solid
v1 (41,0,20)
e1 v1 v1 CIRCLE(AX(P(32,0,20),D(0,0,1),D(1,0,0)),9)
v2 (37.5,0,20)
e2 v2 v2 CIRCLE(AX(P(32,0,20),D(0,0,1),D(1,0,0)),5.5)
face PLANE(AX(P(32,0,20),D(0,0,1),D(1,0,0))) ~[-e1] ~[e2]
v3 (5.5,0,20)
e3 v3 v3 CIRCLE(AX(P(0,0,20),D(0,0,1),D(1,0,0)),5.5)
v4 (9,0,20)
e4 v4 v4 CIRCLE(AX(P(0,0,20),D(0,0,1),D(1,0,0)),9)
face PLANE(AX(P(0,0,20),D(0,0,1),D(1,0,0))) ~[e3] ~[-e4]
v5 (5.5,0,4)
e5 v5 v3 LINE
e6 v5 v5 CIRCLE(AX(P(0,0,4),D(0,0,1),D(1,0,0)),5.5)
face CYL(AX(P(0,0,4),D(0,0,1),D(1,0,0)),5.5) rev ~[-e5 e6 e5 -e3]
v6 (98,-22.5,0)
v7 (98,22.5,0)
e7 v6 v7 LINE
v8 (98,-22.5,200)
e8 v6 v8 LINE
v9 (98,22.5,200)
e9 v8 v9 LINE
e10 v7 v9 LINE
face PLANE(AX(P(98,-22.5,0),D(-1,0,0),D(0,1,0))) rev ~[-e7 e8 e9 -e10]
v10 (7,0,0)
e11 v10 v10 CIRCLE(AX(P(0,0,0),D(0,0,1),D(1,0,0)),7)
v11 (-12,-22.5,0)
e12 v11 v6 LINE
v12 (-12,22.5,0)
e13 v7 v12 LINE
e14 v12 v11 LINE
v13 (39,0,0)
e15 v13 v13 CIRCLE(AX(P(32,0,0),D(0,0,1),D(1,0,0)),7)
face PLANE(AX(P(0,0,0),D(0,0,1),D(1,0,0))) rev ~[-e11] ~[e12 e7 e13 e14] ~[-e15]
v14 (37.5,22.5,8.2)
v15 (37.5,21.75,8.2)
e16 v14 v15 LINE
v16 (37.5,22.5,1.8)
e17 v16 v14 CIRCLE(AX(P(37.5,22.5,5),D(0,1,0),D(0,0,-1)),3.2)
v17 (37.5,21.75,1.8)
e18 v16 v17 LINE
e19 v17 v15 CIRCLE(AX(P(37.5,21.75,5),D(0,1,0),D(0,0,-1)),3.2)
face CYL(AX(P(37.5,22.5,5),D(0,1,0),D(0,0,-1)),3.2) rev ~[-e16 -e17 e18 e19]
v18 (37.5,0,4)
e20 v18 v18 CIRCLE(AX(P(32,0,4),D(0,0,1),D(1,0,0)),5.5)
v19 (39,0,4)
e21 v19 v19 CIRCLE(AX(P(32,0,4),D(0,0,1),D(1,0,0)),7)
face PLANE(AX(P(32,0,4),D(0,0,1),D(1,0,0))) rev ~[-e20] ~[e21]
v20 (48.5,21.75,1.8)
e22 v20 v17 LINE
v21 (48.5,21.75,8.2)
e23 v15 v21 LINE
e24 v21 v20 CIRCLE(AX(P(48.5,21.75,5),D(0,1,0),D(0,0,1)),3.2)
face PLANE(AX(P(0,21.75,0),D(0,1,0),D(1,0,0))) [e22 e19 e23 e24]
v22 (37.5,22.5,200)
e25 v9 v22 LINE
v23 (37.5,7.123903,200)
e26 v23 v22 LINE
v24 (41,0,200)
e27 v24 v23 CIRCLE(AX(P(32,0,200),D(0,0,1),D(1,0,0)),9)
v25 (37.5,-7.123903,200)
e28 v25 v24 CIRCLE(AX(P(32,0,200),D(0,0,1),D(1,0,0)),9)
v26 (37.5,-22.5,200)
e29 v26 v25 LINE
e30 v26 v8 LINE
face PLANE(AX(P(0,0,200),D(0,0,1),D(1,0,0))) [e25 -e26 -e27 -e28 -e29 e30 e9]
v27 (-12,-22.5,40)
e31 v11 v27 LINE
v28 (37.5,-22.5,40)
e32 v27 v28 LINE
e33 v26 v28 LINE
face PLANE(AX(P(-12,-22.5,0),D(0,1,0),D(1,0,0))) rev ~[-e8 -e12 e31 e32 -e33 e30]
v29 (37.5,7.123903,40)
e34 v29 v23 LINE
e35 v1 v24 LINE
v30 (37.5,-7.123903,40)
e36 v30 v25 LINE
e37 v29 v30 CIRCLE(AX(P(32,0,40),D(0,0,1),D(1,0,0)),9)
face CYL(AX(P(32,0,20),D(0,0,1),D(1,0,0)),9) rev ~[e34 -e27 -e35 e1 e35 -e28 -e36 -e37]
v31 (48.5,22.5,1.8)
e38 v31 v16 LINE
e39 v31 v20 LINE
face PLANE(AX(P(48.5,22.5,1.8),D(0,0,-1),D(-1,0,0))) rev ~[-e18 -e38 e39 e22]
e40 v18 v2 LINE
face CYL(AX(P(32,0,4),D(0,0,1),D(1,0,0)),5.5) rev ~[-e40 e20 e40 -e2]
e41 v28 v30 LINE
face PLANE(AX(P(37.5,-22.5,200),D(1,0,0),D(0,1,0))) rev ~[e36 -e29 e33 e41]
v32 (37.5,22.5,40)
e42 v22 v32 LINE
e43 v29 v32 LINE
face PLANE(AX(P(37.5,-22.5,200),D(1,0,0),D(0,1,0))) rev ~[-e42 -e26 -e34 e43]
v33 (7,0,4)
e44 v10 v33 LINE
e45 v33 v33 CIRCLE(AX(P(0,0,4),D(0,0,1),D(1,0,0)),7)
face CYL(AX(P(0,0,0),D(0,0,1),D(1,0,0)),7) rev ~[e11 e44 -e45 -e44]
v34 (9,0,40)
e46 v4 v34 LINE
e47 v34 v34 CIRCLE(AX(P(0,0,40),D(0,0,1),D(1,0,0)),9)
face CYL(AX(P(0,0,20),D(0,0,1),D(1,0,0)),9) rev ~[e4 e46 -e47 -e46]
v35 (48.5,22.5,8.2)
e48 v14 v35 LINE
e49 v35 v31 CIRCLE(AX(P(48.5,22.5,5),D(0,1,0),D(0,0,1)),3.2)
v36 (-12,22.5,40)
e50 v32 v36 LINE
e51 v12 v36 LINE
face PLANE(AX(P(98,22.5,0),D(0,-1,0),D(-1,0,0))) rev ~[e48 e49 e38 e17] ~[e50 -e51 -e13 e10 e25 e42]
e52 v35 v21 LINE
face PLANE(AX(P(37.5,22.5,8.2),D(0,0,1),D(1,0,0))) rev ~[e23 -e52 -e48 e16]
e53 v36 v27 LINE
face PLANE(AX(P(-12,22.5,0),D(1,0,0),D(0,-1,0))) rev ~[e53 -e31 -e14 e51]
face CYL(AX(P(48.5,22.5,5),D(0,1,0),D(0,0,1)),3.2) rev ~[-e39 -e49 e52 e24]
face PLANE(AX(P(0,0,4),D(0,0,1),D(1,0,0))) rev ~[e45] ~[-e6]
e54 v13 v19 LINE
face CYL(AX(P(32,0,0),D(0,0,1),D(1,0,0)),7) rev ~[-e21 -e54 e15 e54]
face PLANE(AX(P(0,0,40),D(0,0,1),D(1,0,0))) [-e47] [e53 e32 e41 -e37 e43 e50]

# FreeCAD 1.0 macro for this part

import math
import FreeCAD as App
import Part
import Sketcher

doc = App.newDocument("Part")
body = doc.addObject("PartDesign::Body", "Body")

# Sketch on XY plane
sketch1 = body.newObject("Sketcher::SketchObject", "Sketch")
sketch1.AttachmentSupport = (doc.getObject("XY_Plane"), [""])
sketch1.MapMode = "FlatFace"
sketch1.addGeometry([
    Part.LineSegment(App.Vector(-12, 22.5, 0), App.Vector(-12, -22.5, 0)),
    Part.LineSegment(App.Vector(-12, -22.5, 0), App.Vector(98, -22.5, 0)),
    Part.LineSegment(App.Vector(98, -22.5, 0), App.Vector(98, 22.5, 0)),
    Part.LineSegment(App.Vector(98, 22.5, 0), App.Vector(-12, 22.5, 0)),
], False)
sketch1.addConstraint([
    Sketcher.Constraint("Coincident", 0, 2, 1, 1),
    Sketcher.Constraint("Coincident", 1, 2, 2, 1),
    Sketcher.Constraint("Coincident", 2, 2, 3, 1),
    Sketcher.Constraint("Coincident", 3, 2, 0, 1),
    Sketcher.Constraint("Vertical", 0),
    Sketcher.Constraint("Horizontal", 1),
    Sketcher.Constraint("Vertical", 2),
    Sketcher.Constraint("Horizontal", 3),
    Sketcher.Constraint("DistanceX", 1, 1, 1, 2, 110.0),
    Sketcher.Constraint("DistanceY", 0, 2, 0, 1, 45.0),
    Sketcher.Constraint("DistanceX", 0, 2, -1, 1, 12.0),
    Sketcher.Constraint("DistanceY", 0, 2, -1, 1, 22.5),
])
pad1 = body.newObject("PartDesign::Pad", "Pad")
pad1.Profile = sketch1
pad1.Length = 200

# Sketch on XZ plane
sketch2 = body.newObject("Sketcher::SketchObject", "Sketch001")
sketch2.AttachmentSupport = (doc.getObject("XZ_Plane"), [""])
sketch2.MapMode = "FlatFace"
sketch2.addGeometry([
    Part.LineSegment(App.Vector(0, 0, 0), App.Vector(0, 200, 0)),  # 0
    Part.LineSegment(App.Vector(0, 200, 0), App.Vector(9, 200, 0)),  # 1
    Part.LineSegment(App.Vector(9, 200, 0), App.Vector(9, 20, 0)),  # 2
    Part.LineSegment(App.Vector(9, 20, 0), App.Vector(5.5, 20, 0)),  # 3
    Part.LineSegment(App.Vector(5.5, 20, 0), App.Vector(5.5, 4, 0)),  # 4
    Part.LineSegment(App.Vector(5.5, 4, 0), App.Vector(7, 4, 0)),  # 5
    Part.LineSegment(App.Vector(7, 4, 0), App.Vector(7, 0, 0)),  # 6
    Part.LineSegment(App.Vector(7, 0, 0), App.Vector(0, 0, 0)),  # 7
], False)
sketch2.addConstraint([
    Sketcher.Constraint("Coincident", 0, 2, 1, 1),
    Sketcher.Constraint("Coincident", 1, 2, 2, 1),
    Sketcher.Constraint("Coincident", 2, 2, 3, 1),
    Sketcher.Constraint("Coincident", 3, 2, 4, 1),
    Sketcher.Constraint("Coincident", 4, 2, 5, 1),
    Sketcher.Constraint("Coincident", 5, 2, 6, 1),
    Sketcher.Constraint("Coincident", 6, 2, 7, 1),
    Sketcher.Constraint("Coincident", 7, 2, 0, 1),
    Sketcher.Constraint("Vertical", 0),
    Sketcher.Constraint("Horizontal", 1),
    Sketcher.Constraint("Vertical", 2),
    Sketcher.Constraint("Horizontal", 3),
    Sketcher.Constraint("Vertical", 4),
    Sketcher.Constraint("Horizontal", 5),
    Sketcher.Constraint("Vertical", 6),
    Sketcher.Constraint("Horizontal", 7),
    Sketcher.Constraint("Coincident", 7, 2, -1, 1),
    Sketcher.Constraint("DistanceX", 1, 1, 1, 2, 9.0),
    Sketcher.Constraint("DistanceX", 7, 2, 7, 1, 7.0),
    Sketcher.Constraint("DistanceY", 0, 1, 0, 2, 200.0),
    Sketcher.Constraint("DistanceY", 2, 2, 2, 1, 180.0),
    Sketcher.Constraint("DistanceY", 4, 2, 4, 1, 16.0),
    Sketcher.Constraint("DistanceX", 3, 2, 3, 1, 3.5),
])
groove = body.newObject("PartDesign::Groove", "Groove")
groove.Profile = sketch2
groove.ReferenceAxis = (sketch2, ["V_Axis"])
groove.Angle = 360
doc.recompute()

linearpattern = body.newObject("PartDesign::LinearPattern", "LinearPattern")
linearpattern.Originals = [groove]
linearpattern.Direction = (doc.getObject("X_Axis"), [""])
linearpattern.Mode = "offset"
linearpattern.Offset = 32
linearpattern.Occurrences = 2
body.Tip = linearpattern

# Sketch on XY plane
sketch3 = body.newObject("Sketcher::SketchObject", "Sketch002")
sketch3.AttachmentSupport = (doc.getObject("XY_Plane"), [""])
sketch3.MapMode = "FlatFace"
sketch3.AttachmentOffset = App.Placement(App.Vector(0, 0, 200), App.Rotation())
sketch3.addGeometry([
    Part.LineSegment(App.Vector(-12, 22.5, 0), App.Vector(-12, -22.5, 0)),
    Part.LineSegment(App.Vector(-12, -22.5, 0), App.Vector(37.5, -22.5, 0)),
    Part.LineSegment(App.Vector(37.5, -22.5, 0), App.Vector(37.5, 22.5, 0)),
    Part.LineSegment(App.Vector(37.5, 22.5, 0), App.Vector(-12, 22.5, 0)),
], False)
sketch3.addConstraint([
    Sketcher.Constraint("Coincident", 0, 2, 1, 1),
    Sketcher.Constraint("Coincident", 1, 2, 2, 1),
    Sketcher.Constraint("Coincident", 2, 2, 3, 1),
    Sketcher.Constraint("Coincident", 3, 2, 0, 1),
    Sketcher.Constraint("Vertical", 0),
    Sketcher.Constraint("Horizontal", 1),
    Sketcher.Constraint("Vertical", 2),
    Sketcher.Constraint("Horizontal", 3),
    Sketcher.Constraint("DistanceY", 0, 2, 0, 1, 45.0),
    Sketcher.Constraint("DistanceX", 1, 1, 1, 2, 49.5),
    Sketcher.Constraint("DistanceX", 0, 2, -1, 1, 12.0),
    Sketcher.Constraint("DistanceY", 0, 2, -1, 1, 22.5),
])
pocket1 = body.newObject("PartDesign::Pocket", "Pocket")
pocket1.Profile = sketch3
pocket1.Length = 160

# Sketch on XZ plane
sketch4 = body.newObject("Sketcher::SketchObject", "Sketch003")
sketch4.AttachmentSupport = (doc.getObject("XZ_Plane"), [""])
sketch4.MapMode = "FlatFace"
sketch4.AttachmentOffset = App.Placement(App.Vector(0, 0, -22.5), App.Rotation())
sketch4.addGeometry([
    Part.LineSegment(App.Vector(48.5, 1.8, 0), App.Vector(37.5, 1.8, 0)),
    Part.ArcOfCircle(Part.Circle(App.Vector(37.5, 5, 0), App.Vector(0, 0, 1), 3.2), math.radians(90), math.radians(270)),
    Part.LineSegment(App.Vector(37.5, 8.2, 0), App.Vector(48.5, 8.2, 0)),
    Part.ArcOfCircle(Part.Circle(App.Vector(48.5, 5, 0), App.Vector(0, 0, 1), 3.2), math.radians(-90), math.radians(90)),
], False)
sketch4.addConstraint([
    Sketcher.Constraint("Tangent", 0, 2, 1, 2),
    Sketcher.Constraint("Tangent", 1, 1, 2, 1),
    Sketcher.Constraint("Tangent", 2, 2, 3, 2),
    Sketcher.Constraint("Tangent", 3, 1, 0, 1),
    Sketcher.Constraint("Horizontal", 0),
    Sketcher.Constraint("Horizontal", 2),
    Sketcher.Constraint("Radius", 1, 3.2),
    Sketcher.Constraint("DistanceX", 0, 2, 0, 1, 11.0),
    Sketcher.Constraint("DistanceY", -1, 1, 1, 3, 5.0),
    Sketcher.Constraint("DistanceX", -1, 1, 1, 3, 37.5),
])
pocket2 = body.newObject("PartDesign::Pocket", "Pocket001")
pocket2.Profile = sketch4
pocket2.Length = 0.75
pocket2.Reversed = True

doc.recompute()
